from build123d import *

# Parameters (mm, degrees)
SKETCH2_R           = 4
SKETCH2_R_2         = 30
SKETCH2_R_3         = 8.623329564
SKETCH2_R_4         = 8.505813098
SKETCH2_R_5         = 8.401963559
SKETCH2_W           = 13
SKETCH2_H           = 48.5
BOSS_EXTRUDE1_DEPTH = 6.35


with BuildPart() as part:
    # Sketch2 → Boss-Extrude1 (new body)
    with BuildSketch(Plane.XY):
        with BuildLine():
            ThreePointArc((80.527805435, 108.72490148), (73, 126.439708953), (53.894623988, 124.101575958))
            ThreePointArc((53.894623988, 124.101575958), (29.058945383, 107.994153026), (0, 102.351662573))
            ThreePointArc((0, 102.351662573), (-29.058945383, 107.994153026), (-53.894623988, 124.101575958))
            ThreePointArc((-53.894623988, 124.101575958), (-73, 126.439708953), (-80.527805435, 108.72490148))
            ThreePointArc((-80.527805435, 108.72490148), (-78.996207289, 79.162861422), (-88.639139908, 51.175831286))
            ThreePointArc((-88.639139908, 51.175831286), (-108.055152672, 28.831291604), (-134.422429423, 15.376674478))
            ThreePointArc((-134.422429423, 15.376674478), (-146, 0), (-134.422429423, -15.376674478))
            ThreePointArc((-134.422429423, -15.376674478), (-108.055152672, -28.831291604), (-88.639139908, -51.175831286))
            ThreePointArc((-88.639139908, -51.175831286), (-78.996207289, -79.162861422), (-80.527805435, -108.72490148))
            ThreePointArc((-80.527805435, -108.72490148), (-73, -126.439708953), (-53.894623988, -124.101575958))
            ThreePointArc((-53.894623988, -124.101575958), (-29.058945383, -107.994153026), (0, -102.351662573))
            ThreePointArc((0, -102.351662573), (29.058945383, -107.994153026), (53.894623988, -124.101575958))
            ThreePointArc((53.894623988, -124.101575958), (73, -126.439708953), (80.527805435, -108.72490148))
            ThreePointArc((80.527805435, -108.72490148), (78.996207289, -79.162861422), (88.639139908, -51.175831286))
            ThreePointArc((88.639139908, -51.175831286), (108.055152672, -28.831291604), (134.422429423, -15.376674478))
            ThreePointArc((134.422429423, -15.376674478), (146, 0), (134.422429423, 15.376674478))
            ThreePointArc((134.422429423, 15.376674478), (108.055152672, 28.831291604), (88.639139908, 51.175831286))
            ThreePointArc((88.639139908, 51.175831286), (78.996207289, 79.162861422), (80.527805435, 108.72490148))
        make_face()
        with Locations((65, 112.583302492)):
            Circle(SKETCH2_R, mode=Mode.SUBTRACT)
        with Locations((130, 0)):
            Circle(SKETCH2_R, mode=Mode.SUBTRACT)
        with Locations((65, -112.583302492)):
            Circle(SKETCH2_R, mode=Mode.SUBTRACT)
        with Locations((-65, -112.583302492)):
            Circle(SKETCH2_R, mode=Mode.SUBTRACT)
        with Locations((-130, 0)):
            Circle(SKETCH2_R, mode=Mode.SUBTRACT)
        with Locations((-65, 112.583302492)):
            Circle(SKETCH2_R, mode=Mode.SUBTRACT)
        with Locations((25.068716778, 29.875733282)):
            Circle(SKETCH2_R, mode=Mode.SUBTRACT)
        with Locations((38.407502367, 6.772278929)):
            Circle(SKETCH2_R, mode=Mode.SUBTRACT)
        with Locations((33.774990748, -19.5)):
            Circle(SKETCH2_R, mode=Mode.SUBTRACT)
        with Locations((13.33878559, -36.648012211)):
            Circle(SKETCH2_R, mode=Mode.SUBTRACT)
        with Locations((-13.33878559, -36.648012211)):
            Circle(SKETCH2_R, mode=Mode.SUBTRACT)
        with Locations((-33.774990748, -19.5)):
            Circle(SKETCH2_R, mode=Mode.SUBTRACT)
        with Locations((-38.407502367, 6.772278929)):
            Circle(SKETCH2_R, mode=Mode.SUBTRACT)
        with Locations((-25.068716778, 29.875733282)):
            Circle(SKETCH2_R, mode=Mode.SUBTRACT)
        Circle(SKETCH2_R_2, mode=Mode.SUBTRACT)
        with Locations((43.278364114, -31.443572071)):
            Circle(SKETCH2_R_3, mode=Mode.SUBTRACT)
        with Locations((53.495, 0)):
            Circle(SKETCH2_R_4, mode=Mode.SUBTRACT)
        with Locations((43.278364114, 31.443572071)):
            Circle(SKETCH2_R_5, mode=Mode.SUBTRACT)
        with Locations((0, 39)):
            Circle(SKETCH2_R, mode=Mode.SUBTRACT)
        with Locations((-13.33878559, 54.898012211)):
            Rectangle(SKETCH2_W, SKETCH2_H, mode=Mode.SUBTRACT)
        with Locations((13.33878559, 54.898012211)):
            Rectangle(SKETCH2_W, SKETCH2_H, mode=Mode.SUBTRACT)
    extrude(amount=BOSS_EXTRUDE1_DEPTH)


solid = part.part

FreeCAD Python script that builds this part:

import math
import FreeCAD as App
import Part
import Sketcher
from FreeCAD import Vector

doc = App.newDocument("Part")
body = doc.addObject("PartDesign::Body", "Body")

sketch1 = body.newObject("Sketcher::SketchObject", "Sketch")
sketch1.AttachmentSupport = (doc.getObject("XY_Plane"), [""])
sketch1.MapMode = "FlatFace"
sketch1.addGeometry([
    Part.ArcOfCircle(Part.Circle(Vector(65, 112.6, 0), Vector(0, 0, 1), 16), math.radians(-14), math.radians(134)),
    Part.ArcOfCircle(Part.Circle(Vector(0, 180, 0), Vector(0, 0, 1), 77.6), math.radians(-90), math.radians(-46)),
    Part.ArcOfCircle(Part.Circle(Vector(0, 180, 0), Vector(0, 0, 1), 77.6), math.radians(-134), math.radians(-90)),
    Part.ArcOfCircle(Part.Circle(Vector(-65, 112.6, 0), Vector(0, 0, 1), 16), math.radians(46), math.radians(194)),
    Part.ArcOfCircle(Part.Circle(Vector(-155.9, 90, 0), Vector(0, 0, 1), 77.6), math.radians(-30), math.radians(14)),
    Part.ArcOfCircle(Part.Circle(Vector(-155.9, 90, 0), Vector(0, 0, 1), 77.6), math.radians(-74), math.radians(-30)),
    Part.ArcOfCircle(Part.Circle(Vector(-130, 0, 0), Vector(0, 0, 1), 16), math.radians(106), math.radians(254)),
    Part.ArcOfCircle(Part.Circle(Vector(-155.9, -90, 0), Vector(0, 0, 1), 77.6), math.radians(30), math.radians(74)),
    Part.ArcOfCircle(Part.Circle(Vector(-155.9, -90, 0), Vector(0, 0, 1), 77.6), math.radians(-14), math.radians(30)),
    Part.ArcOfCircle(Part.Circle(Vector(-65, -112.6, 0), Vector(0, 0, 1), 16), math.radians(166), math.radians(314)),
    Part.ArcOfCircle(Part.Circle(Vector(0, -180, 0), Vector(0, 0, 1), 77.6), math.radians(90), math.radians(134)),
    Part.ArcOfCircle(Part.Circle(Vector(0, -180, 0), Vector(0, 0, 1), 77.6), math.radians(46), math.radians(90)),
    Part.ArcOfCircle(Part.Circle(Vector(65, -112.6, 0), Vector(0, 0, 1), 16), math.radians(-134), math.radians(14)),
    Part.ArcOfCircle(Part.Circle(Vector(155.9, -90, 0), Vector(0, 0, 1), 77.6), math.radians(150), math.radians(194)),
    Part.ArcOfCircle(Part.Circle(Vector(155.9, -90, 0), Vector(0, 0, 1), 77.6), math.radians(106), math.radians(150)),
    Part.ArcOfCircle(Part.Circle(Vector(130, 0, 0), Vector(0, 0, 1), 16), math.radians(-74), math.radians(74)),
    Part.ArcOfCircle(Part.Circle(Vector(155.9, 90, 0), Vector(0, 0, 1), 77.6), math.radians(-150), math.radians(-106)),
    Part.ArcOfCircle(Part.Circle(Vector(155.9, 90, 0), Vector(0, 0, 1), 77.6), math.radians(166), math.radians(210)),
    Part.Circle(Vector(-65, -112.6, 0), Vector(0, 0, 1), 4),
    Part.Circle(Vector(-13.3, -36.6, 0), Vector(0, 0, 1), 4),
    Part.Circle(Vector(-33.8, -19.5, 0), Vector(0, 0, 1), 4),
    Part.Circle(Vector(65, -112.6, 0), Vector(0, 0, 1), 4),
    Part.Circle(Vector(13.3, -36.6, 0), Vector(0, 0, 1), 4),
    Part.Circle(Vector(43.3, -31.4, 0), Vector(0, 0, 1), 8.6),
    Part.Circle(Vector(33.8, -19.5, 0), Vector(0, 0, 1), 4),
    Part.Circle(Vector(-130, 0, 0), Vector(0, 0, 1), 4),
    Part.Circle(Vector(-38.4, 6.8, 0), Vector(0, 0, 1), 4),
    Part.Circle(Vector(-25.1, 29.9, 0), Vector(0, 0, 1), 4),
    Part.LineSegment(Vector(-6.8, 30.6, 0), Vector(-19.8, 30.6, 0)),
    Part.LineSegment(Vector(-19.8, 30.6, 0), Vector(-19.8, 79.1, 0)),
    Part.LineSegment(Vector(-19.8, 79.1, 0), Vector(-6.8, 79.1, 0)),
    Part.LineSegment(Vector(-6.8, 79.1, 0), Vector(-6.8, 30.6, 0)),
    Part.Circle(Vector(-65, 112.6, 0), Vector(0, 0, 1), 4),
    Part.Circle(Vector(0, 0, 0), Vector(0, 0, 1), 30),
    Part.Circle(Vector(38.4, 6.8, 0), Vector(0, 0, 1), 4),
    Part.Circle(Vector(53.5, 0, 0), Vector(0, 0, 1), 8.5),
    Part.Circle(Vector(0, 39, 0), Vector(0, 0, 1), 4),
    Part.Circle(Vector(25.1, 29.9, 0), Vector(0, 0, 1), 4),
    Part.LineSegment(Vector(19.8, 30.6, 0), Vector(6.8, 30.6, 0)),
    Part.LineSegment(Vector(6.8, 30.6, 0), Vector(6.8, 79.1, 0)),
    Part.LineSegment(Vector(6.8, 79.1, 0), Vector(19.8, 79.1, 0)),
    Part.LineSegment(Vector(19.8, 79.1, 0), Vector(19.8, 30.6, 0)),
    Part.Circle(Vector(43.3, 31.4, 0), Vector(0, 0, 1), 8.4),
    Part.Circle(Vector(130, 0, 0), Vector(0, 0, 1), 4),
    Part.Circle(Vector(65, 112.6, 0), Vector(0, 0, 1), 4),
], False)
sketch1.addConstraint([
    Sketcher.Constraint("Tangent", 0, 2, 1, 2),
    Sketcher.Constraint("Tangent", 1, 1, 2, 2),
    Sketcher.Constraint("Tangent", 2, 1, 3, 1),
    Sketcher.Constraint("Tangent", 3, 2, 4, 2),
    Sketcher.Constraint("Tangent", 4, 1, 5, 2),
    Sketcher.Constraint("Tangent", 5, 1, 6, 1),
    Sketcher.Constraint("Tangent", 6, 2, 7, 2),
    Sketcher.Constraint("Tangent", 7, 1, 8, 2),
    Sketcher.Constraint("Tangent", 8, 1, 9, 1),
    Sketcher.Constraint("Tangent", 9, 2, 10, 2),
    Sketcher.Constraint("Tangent", 10, 1, 11, 2),
    Sketcher.Constraint("Tangent", 11, 1, 12, 1),
    Sketcher.Constraint("Tangent", 12, 2, 13, 2),
    Sketcher.Constraint("Tangent", 13, 1, 14, 2),
    Sketcher.Constraint("Tangent", 14, 1, 15, 1),
    Sketcher.Constraint("Tangent", 15, 2, 16, 2),
    Sketcher.Constraint("Tangent", 16, 1, 17, 2),
    Sketcher.Constraint("Tangent", 17, 1, 0, 1),
    Sketcher.Constraint("Coincident", 28, 2, 29, 1),
    Sketcher.Constraint("Coincident", 29, 2, 30, 1),
    Sketcher.Constraint("Coincident", 30, 2, 31, 1),
    Sketcher.Constraint("Coincident", 31, 2, 28, 1),
    Sketcher.Constraint("Coincident", 38, 2, 39, 1),
    Sketcher.Constraint("Coincident", 39, 2, 40, 1),
    Sketcher.Constraint("Coincident", 40, 2, 41, 1),
    Sketcher.Constraint("Coincident", 41, 2, 38, 1),
    Sketcher.Constraint("Horizontal", 28),
    Sketcher.Constraint("Vertical", 29),
    Sketcher.Constraint("Horizontal", 30),
    Sketcher.Constraint("Vertical", 31),
    Sketcher.Constraint("Horizontal", 38),
    Sketcher.Constraint("Vertical", 39),
    Sketcher.Constraint("Horizontal", 40),
    Sketcher.Constraint("Vertical", 41),
    Sketcher.Constraint("Coincident", 33, 3, -1, 1),
    Sketcher.Constraint("Coincident", 18, 3, 9, 3),
    Sketcher.Constraint("Coincident", 21, 3, 12, 3),
    Sketcher.Constraint("Coincident", 25, 3, 6, 3),
    Sketcher.Constraint("Coincident", 32, 3, 3, 3),
    Sketcher.Constraint("Coincident", 43, 3, 15, 3),
    Sketcher.Constraint("Coincident", 44, 3, 0, 3),
    Sketcher.Constraint("Equal", 1, 2),
    Sketcher.Constraint("Equal", 0, 3),
    Sketcher.Constraint("Equal", 2, 4),
    Sketcher.Constraint("Equal", 4, 5),
    Sketcher.Constraint("Equal", 3, 6),
    Sketcher.Constraint("Equal", 5, 7),
    Sketcher.Constraint("Equal", 7, 8),
    Sketcher.Constraint("Equal", 6, 9),
    Sketcher.Constraint("Equal", 8, 10),
    Sketcher.Constraint("Equal", 10, 11),
    Sketcher.Constraint("Equal", 9, 12),
    Sketcher.Constraint("Equal", 11, 13),
    Sketcher.Constraint("Equal", 13, 14),
    Sketcher.Constraint("Equal", 12, 15),
    Sketcher.Constraint("Equal", 14, 16),
    Sketcher.Constraint("Equal", 16, 17),
    Sketcher.Constraint("Equal", 18, 19),
    Sketcher.Constraint("Equal", 19, 20),
    Sketcher.Constraint("Equal", 20, 21),
    Sketcher.Constraint("Equal", 21, 22),
    Sketcher.Constraint("Equal", 22, 24),
    Sketcher.Constraint("Equal", 24, 25),
    Sketcher.Constraint("Equal", 25, 26),
    Sketcher.Constraint("Equal", 26, 27),
    Sketcher.Constraint("Equal", 27, 32),
    Sketcher.Constraint("Equal", 32, 34),
    Sketcher.Constraint("Equal", 34, 36),
    Sketcher.Constraint("Equal", 36, 37),
    Sketcher.Constraint("Equal", 37, 43),
    Sketcher.Constraint("Equal", 43, 44),
    Sketcher.Constraint("Symmetric", 0, 3, 9, 3, -1, 1),
    Sketcher.Constraint("Symmetric", 3, 3, 12, 3, -1, 1),
    Sketcher.Constraint("Symmetric", 6, 3, 15, 3, -1, 1),
    Sketcher.Constraint("Symmetric", 0, 3, 3, 3, -2),
    Sketcher.Constraint("Symmetric", 19, 3, 22, 3, -2),
    Sketcher.Constraint("Symmetric", 20, 3, 24, 3, -2),
    Sketcher.Constraint("Symmetric", 26, 3, 34, 3, -2),
    Sketcher.Constraint("Symmetric", 27, 3, 37, 3, -2),
    Sketcher.Constraint("Symmetric", 7, 1, 13, 1, -2),
    Sketcher.Constraint("Symmetric", 31, 2, 38, 2, -2),
    Sketcher.Constraint("Symmetric", 29, 2, 40, 2, -2),
    Sketcher.Constraint("Symmetric", 23, 3, 42, 3, -1),
    Sketcher.Constraint("PointOnObject", 35, 3, -1),
    Sketcher.Constraint("PointOnObject", 36, 3, -2),
    Sketcher.Constraint("PointOnObject", 1, 1, -2),
    Sketcher.Constraint("PointOnObject", 10, 1, -2),
    Sketcher.Constraint("Horizontal", 4, 1, 16, 1),
    Sketcher.Constraint("Vertical", 4, 1, 7, 1),
    Sketcher.Constraint("Diameter", 18, 8.0),
    Sketcher.Constraint("Diameter", 33, 60.0),
    Sketcher.Constraint("Radius", 0, 16.0),
    Sketcher.Constraint("DistanceX", 28, 2, 28, 1, 13.0),
    Sketcher.Constraint("DistanceY", 29, 1, 29, 2, 48.5),
    Sketcher.Constraint("DistanceX", -1, 1, 0, 3, 65.0),
    Sketcher.Constraint("DistanceY", -1, 1, 1, 3, 180.0),
    Sketcher.Constraint("DistanceY", -1, 1, 4, 3, 90.0),
    Sketcher.Constraint("DistanceX", 6, 3, -1, 1, 130.0),
    Sketcher.Constraint("DistanceY", -1, 1, 36, 3, 39.0),
    Sketcher.Constraint("DistanceY", 20, 3, -1, 1, 19.5),
    Sketcher.Constraint("Diameter", 23, 17.246659),
    Sketcher.Constraint("Diameter", 35, 17.011626),
    Sketcher.Constraint("Diameter", 42, 16.803927),
    Sketcher.Constraint("DistanceX", -1, 1, 35, 3, 53.495),
    Sketcher.Constraint("DistanceX", 20, 3, -1, 1, 33.774991),
    Sketcher.Constraint("DistanceY", -1, 1, 26, 3, 6.772279),
    Sketcher.Constraint("DistanceX", 4, 1, -1, 1, 88.63914),
    Sketcher.Constraint("DistanceX", 19, 3, -1, 1, 13.338786),
    Sketcher.Constraint("DistanceY", 19, 3, -1, 1, 36.648012),
    Sketcher.Constraint("DistanceX", -1, 1, 23, 3, 43.278364),
    Sketcher.Constraint("DistanceY", 23, 3, -1, 1, 31.443572),
    Sketcher.Constraint("DistanceX", 26, 3, -1, 1, 38.407502),
    Sketcher.Constraint("DistanceX", 27, 3, -1, 1, 25.068717),
    Sketcher.Constraint("DistanceY", -1, 1, 27, 3, 29.875733),
    Sketcher.Constraint("DistanceX", 28, 2, -1, 1, 19.838786),
    Sketcher.Constraint("DistanceY", -1, 1, 28, 2, 30.648012),
])
pad1 = body.newObject("PartDesign::Pad", "Pad")
pad1.Profile = sketch1
pad1.Length = 6.35

doc.recompute()
